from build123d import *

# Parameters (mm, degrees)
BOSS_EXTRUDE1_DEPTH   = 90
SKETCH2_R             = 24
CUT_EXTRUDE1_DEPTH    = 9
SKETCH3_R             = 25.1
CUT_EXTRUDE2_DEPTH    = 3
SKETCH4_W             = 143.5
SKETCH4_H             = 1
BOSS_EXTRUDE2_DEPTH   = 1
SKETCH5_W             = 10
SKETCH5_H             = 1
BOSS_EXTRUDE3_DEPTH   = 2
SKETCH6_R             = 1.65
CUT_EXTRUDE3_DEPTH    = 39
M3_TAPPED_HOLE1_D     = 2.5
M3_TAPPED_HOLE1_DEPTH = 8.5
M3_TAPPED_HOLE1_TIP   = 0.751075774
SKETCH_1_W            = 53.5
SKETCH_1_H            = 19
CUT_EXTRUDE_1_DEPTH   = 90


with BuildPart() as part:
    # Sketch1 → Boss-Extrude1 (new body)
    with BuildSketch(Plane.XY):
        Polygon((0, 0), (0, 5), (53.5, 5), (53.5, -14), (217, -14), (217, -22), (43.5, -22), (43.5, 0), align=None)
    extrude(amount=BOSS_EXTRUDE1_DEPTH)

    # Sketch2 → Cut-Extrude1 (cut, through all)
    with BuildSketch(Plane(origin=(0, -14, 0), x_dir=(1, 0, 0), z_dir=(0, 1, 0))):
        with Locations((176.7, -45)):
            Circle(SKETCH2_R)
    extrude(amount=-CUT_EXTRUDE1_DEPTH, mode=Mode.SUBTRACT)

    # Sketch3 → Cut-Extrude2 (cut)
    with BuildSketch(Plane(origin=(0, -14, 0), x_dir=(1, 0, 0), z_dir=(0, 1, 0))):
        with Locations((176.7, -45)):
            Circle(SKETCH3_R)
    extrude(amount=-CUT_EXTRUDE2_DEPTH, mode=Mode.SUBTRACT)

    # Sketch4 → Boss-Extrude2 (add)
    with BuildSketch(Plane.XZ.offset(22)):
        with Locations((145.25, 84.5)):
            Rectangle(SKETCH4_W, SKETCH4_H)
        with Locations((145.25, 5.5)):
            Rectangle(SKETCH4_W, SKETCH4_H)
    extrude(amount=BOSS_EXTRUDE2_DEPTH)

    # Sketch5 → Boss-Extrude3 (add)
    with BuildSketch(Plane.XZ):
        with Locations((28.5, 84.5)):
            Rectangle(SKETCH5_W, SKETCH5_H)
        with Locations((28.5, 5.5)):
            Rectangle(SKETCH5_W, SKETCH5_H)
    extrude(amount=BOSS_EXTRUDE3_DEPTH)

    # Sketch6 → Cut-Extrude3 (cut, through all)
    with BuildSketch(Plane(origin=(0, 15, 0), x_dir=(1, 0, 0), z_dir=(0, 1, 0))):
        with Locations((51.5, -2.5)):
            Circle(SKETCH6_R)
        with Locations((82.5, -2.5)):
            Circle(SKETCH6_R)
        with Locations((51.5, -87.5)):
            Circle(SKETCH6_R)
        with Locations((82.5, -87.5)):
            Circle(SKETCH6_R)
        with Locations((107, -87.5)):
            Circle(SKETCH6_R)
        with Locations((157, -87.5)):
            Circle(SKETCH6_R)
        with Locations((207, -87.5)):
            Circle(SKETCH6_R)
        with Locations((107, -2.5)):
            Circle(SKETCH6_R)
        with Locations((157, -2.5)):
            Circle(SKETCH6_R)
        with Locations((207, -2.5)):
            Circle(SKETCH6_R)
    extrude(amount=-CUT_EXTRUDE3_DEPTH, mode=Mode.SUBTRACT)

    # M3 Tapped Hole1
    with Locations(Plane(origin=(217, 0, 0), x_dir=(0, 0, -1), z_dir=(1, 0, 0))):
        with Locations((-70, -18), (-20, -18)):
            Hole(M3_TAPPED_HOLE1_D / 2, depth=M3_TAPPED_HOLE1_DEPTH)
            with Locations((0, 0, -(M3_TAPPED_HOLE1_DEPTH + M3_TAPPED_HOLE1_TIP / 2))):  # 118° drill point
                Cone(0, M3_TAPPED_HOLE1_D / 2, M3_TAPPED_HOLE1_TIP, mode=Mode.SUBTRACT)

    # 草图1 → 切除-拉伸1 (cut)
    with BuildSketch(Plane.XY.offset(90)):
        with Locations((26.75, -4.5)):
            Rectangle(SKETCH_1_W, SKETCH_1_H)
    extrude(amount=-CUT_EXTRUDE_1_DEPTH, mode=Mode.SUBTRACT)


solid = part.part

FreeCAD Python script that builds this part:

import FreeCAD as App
import Part
import Sketcher

doc = App.newDocument("Part")
body = doc.addObject("PartDesign::Body", "Body")

sketch1 = body.newObject("Sketcher::SketchObject", "Sketch")
sketch1.AttachmentSupport = (doc.getObject("XY_Plane"), [""])
sketch1.MapMode = "FlatFace"
sketch1.addGeometry([
    Part.LineSegment(App.Vector(0, 5, 0), App.Vector(0, 0, 0)),
    Part.LineSegment(App.Vector(0, 0, 0), App.Vector(44, 0, 0)),
    Part.LineSegment(App.Vector(44, 0, 0), App.Vector(44, -22, 0)),
    Part.LineSegment(App.Vector(44, -22, 0), App.Vector(217, -22, 0)),
    Part.LineSegment(App.Vector(217, -22, 0), App.Vector(217, -14, 0)),
    Part.LineSegment(App.Vector(217, -14, 0), App.Vector(54, -14, 0)),
    Part.LineSegment(App.Vector(54, -14, 0), App.Vector(54, 5, 0)),
    Part.LineSegment(App.Vector(54, 5, 0), App.Vector(0, 5, 0)),
], False)
sketch1.addConstraint([
    Sketcher.Constraint("Coincident", 0, 2, 1, 1),
    Sketcher.Constraint("Coincident", 1, 2, 2, 1),
    Sketcher.Constraint("Coincident", 2, 2, 3, 1),
    Sketcher.Constraint("Coincident", 3, 2, 4, 1),
    Sketcher.Constraint("Coincident", 4, 2, 5, 1),
    Sketcher.Constraint("Coincident", 5, 2, 6, 1),
    Sketcher.Constraint("Coincident", 6, 2, 7, 1),
    Sketcher.Constraint("Coincident", 7, 2, 0, 1),
    Sketcher.Constraint("Vertical", 0),
    Sketcher.Constraint("Horizontal", 1),
    Sketcher.Constraint("Vertical", 2),
    Sketcher.Constraint("Horizontal", 3),
    Sketcher.Constraint("Vertical", 4),
    Sketcher.Constraint("Horizontal", 5),
    Sketcher.Constraint("Vertical", 6),
    Sketcher.Constraint("Horizontal", 7),
    Sketcher.Constraint("Coincident", 0, 2, -1, 1),
    Sketcher.Constraint("DistanceY", 0, 2, 0, 1, 5.0),
    Sketcher.Constraint("DistanceY", 2, 2, 2, 1, 22.0),
    Sketcher.Constraint("DistanceY", 4, 1, 4, 2, 8.0),
    Sketcher.Constraint("DistanceX", 1, 1, 1, 2, 43.5),
    Sketcher.Constraint("DistanceX", 3, 1, 3, 2, 173.5),
    Sketcher.Constraint("DistanceX", 5, 2, 5, 1, 163.5),
])
pad1 = body.newObject("PartDesign::Pad", "Pad")
pad1.Profile = sketch1
pad1.Length = 90

sketch2 = body.newObject("Sketcher::SketchObject", "Sketch001")
sketch2.AttachmentSupport = (doc.getObject("XZ_Plane"), [""])
sketch2.MapMode = "FlatFace"
sketch2.AttachmentOffset = App.Placement(App.Vector(0, 0, 14), App.Rotation())
sketch2.addGeometry(Part.Circle(App.Vector(177, 45, 0), App.Vector(0, 0, 1), 24), False)
sketch2.addConstraint([
    Sketcher.Constraint("Diameter", 0, 48.0),
    Sketcher.Constraint("DistanceY", -1, 1, 0, 3, 45.0),
    Sketcher.Constraint("DistanceX", -1, 1, 0, 3, 176.7),
])
pocket1 = body.newObject("PartDesign::Pocket", "Pocket")
pocket1.Profile = sketch2
pocket1.Type = "ThroughAll"
pocket1.Reversed = True

sketch3 = body.newObject("Sketcher::SketchObject", "Sketch002")
sketch3.AttachmentSupport = (doc.getObject("XZ_Plane"), [""])
sketch3.MapMode = "FlatFace"
sketch3.AttachmentOffset = App.Placement(App.Vector(0, 0, 14), App.Rotation())
sketch3.addGeometry(Part.Circle(App.Vector(177, 45, 0), App.Vector(0, 0, 1), 25), False)
sketch3.addConstraint([
    Sketcher.Constraint("Diameter", 0, 50.2),
    Sketcher.Constraint("DistanceY", -1, 1, 0, 3, 45.0),
    Sketcher.Constraint("DistanceX", -1, 1, 0, 3, 176.7),
])
pocket2 = body.newObject("PartDesign::Pocket", "Pocket001")
pocket2.Profile = sketch3
pocket2.Length = 3
pocket2.Reversed = True

sketch4 = body.newObject("Sketcher::SketchObject", "Sketch003")
sketch4.AttachmentSupport = (doc.getObject("XZ_Plane"), [""])
sketch4.MapMode = "FlatFace"
sketch4.AttachmentOffset = App.Placement(App.Vector(0, 0, 22), App.Rotation())
sketch4.addGeometry([
    Part.LineSegment(App.Vector(73.5, 85, 0), App.Vector(73.5, 84, 0)),
    Part.LineSegment(App.Vector(73.5, 84, 0), App.Vector(217, 84, 0)),
    Part.LineSegment(App.Vector(217, 84, 0), App.Vector(217, 85, 0)),
    Part.LineSegment(App.Vector(217, 85, 0), App.Vector(73.5, 85, 0)),
    Part.LineSegment(App.Vector(73.5, 6, 0), App.Vector(73.5, 5, 0)),
    Part.LineSegment(App.Vector(73.5, 5, 0), App.Vector(217, 5, 0)),
    Part.LineSegment(App.Vector(217, 5, 0), App.Vector(217, 6, 0)),
    Part.LineSegment(App.Vector(217, 6, 0), App.Vector(73.5, 6, 0)),
], False)
sketch4.addConstraint([
    Sketcher.Constraint("Coincident", 0, 2, 1, 1),
    Sketcher.Constraint("Coincident", 1, 2, 2, 1),
    Sketcher.Constraint("Coincident", 2, 2, 3, 1),
    Sketcher.Constraint("Coincident", 3, 2, 0, 1),
    Sketcher.Constraint("Coincident", 4, 2, 5, 1),
    Sketcher.Constraint("Coincident", 5, 2, 6, 1),
    Sketcher.Constraint("Coincident", 6, 2, 7, 1),
    Sketcher.Constraint("Coincident", 7, 2, 4, 1),
    Sketcher.Constraint("Vertical", 0),
    Sketcher.Constraint("Horizontal", 1),
    Sketcher.Constraint("Vertical", 2),
    Sketcher.Constraint("Horizontal", 3),
    Sketcher.Constraint("Vertical", 4),
    Sketcher.Constraint("Horizontal", 5),
    Sketcher.Constraint("Vertical", 6),
    Sketcher.Constraint("Horizontal", 7),
    Sketcher.Constraint("Vertical", 3, 2, 4, 2),
    Sketcher.Constraint("Vertical", 2, 2, 5, 2),
    Sketcher.Constraint("Equal", 2, 4),
    Sketcher.Constraint("DistanceY", 0, 2, 0, 1, 1.0),
    Sketcher.Constraint("DistanceX", 1, 1, 1, 2, 143.5),
    Sketcher.Constraint("DistanceY", -1, 1, 0, 2, 84.0),
    Sketcher.Constraint("DistanceX", -1, 1, 1, 2, 217.0),
    Sketcher.Constraint("DistanceY", -1, 1, 4, 2, 5.0),
])
pad2 = body.newObject("PartDesign::Pad", "Pad001")
pad2.Profile = sketch4
pad2.Length = 1

sketch5 = body.newObject("Sketcher::SketchObject", "Sketch004")
sketch5.AttachmentSupport = (doc.getObject("XZ_Plane"), [""])
sketch5.MapMode = "FlatFace"
sketch5.addGeometry([
    Part.LineSegment(App.Vector(23.5, 85, 0), App.Vector(23.5, 84, 0)),
    Part.LineSegment(App.Vector(23.5, 84, 0), App.Vector(33.5, 84, 0)),
    Part.LineSegment(App.Vector(33.5, 84, 0), App.Vector(33.5, 85, 0)),
    Part.LineSegment(App.Vector(33.5, 85, 0), App.Vector(23.5, 85, 0)),
    Part.LineSegment(App.Vector(23.5, 6, 0), App.Vector(23.5, 5, 0)),
    Part.LineSegment(App.Vector(23.5, 5, 0), App.Vector(33.5, 5, 0)),
    Part.LineSegment(App.Vector(33.5, 5, 0), App.Vector(33.5, 6, 0)),
    Part.LineSegment(App.Vector(33.5, 6, 0), App.Vector(23.5, 6, 0)),
], False)
sketch5.addConstraint([
    Sketcher.Constraint("Coincident", 0, 2, 1, 1),
    Sketcher.Constraint("Coincident", 1, 2, 2, 1),
    Sketcher.Constraint("Coincident", 2, 2, 3, 1),
    Sketcher.Constraint("Coincident", 3, 2, 0, 1),
    Sketcher.Constraint("Coincident", 4, 2, 5, 1),
    Sketcher.Constraint("Coincident", 5, 2, 6, 1),
    Sketcher.Constraint("Coincident", 6, 2, 7, 1),
    Sketcher.Constraint("Coincident", 7, 2, 4, 1),
    Sketcher.Constraint("Vertical", 0),
    Sketcher.Constraint("Horizontal", 1),
    Sketcher.Constraint("Vertical", 2),
    Sketcher.Constraint("Horizontal", 3),
    Sketcher.Constraint("Vertical", 4),
    Sketcher.Constraint("Horizontal", 5),
    Sketcher.Constraint("Vertical", 6),
    Sketcher.Constraint("Horizontal", 7),
    Sketcher.Constraint("Vertical", 3, 2, 4, 2),
    Sketcher.Constraint("Vertical", 2, 2, 5, 2),
    Sketcher.Constraint("Equal", 2, 4),
    Sketcher.Constraint("DistanceX", 1, 1, 1, 2, 10.0),
    Sketcher.Constraint("DistanceY", 0, 2, 0, 1, 1.0),
    Sketcher.Constraint("DistanceY", -1, 1, 0, 2, 84.0),
    Sketcher.Constraint("DistanceY", -1, 1, 4, 2, 5.0),
    Sketcher.Constraint("DistanceX", -1, 1, 0, 2, 23.5),
])
pad3 = body.newObject("PartDesign::Pad", "Pad002")
pad3.Profile = sketch5
pad3.Length = 2

sketch6 = body.newObject("Sketcher::SketchObject", "Sketch005")
sketch6.AttachmentSupport = (doc.getObject("XZ_Plane"), [""])
sketch6.MapMode = "FlatFace"
sketch6.AttachmentOffset = App.Placement(App.Vector(0, 0, -15), App.Rotation())
sketch6.addGeometry([
    Part.Circle(App.Vector(51.5, 2.5, 0), App.Vector(0, 0, 1), 1.6),
    Part.Circle(App.Vector(82.5, 2.5, 0), App.Vector(0, 0, 1), 1.6),
    Part.Circle(App.Vector(51.5, 87.5, 0), App.Vector(0, 0, 1), 1.6),
    Part.Circle(App.Vector(82.5, 87.5, 0), App.Vector(0, 0, 1), 1.6),
    Part.Circle(App.Vector(107, 87.5, 0), App.Vector(0, 0, 1), 1.6),
    Part.Circle(App.Vector(157, 87.5, 0), App.Vector(0, 0, 1), 1.6),
    Part.Circle(App.Vector(207, 87.5, 0), App.Vector(0, 0, 1), 1.6),
    Part.Circle(App.Vector(107, 2.5, 0), App.Vector(0, 0, 1), 1.6),
    Part.Circle(App.Vector(157, 2.5, 0), App.Vector(0, 0, 1), 1.6),
    Part.Circle(App.Vector(207, 2.5, 0), App.Vector(0, 0, 1), 1.6),
], False)
sketch6.addConstraint([
    Sketcher.Constraint("Equal", 0, 1),
    Sketcher.Constraint("Equal", 1, 2),
    Sketcher.Constraint("Equal", 2, 3),
    Sketcher.Constraint("Equal", 3, 4),
    Sketcher.Constraint("Equal", 4, 5),
    Sketcher.Constraint("Equal", 5, 6),
    Sketcher.Constraint("Equal", 6, 7),
    Sketcher.Constraint("Equal", 7, 8),
    Sketcher.Constraint("Equal", 8, 9),
    Sketcher.Constraint("Horizontal", 0, 3, 1, 3),
    Sketcher.Constraint("Horizontal", 2, 3, 3, 3),
    Sketcher.Constraint("Horizontal", 3, 3, 4, 3),
    Sketcher.Constraint("Horizontal", 4, 3, 5, 3),
    Sketcher.Constraint("Horizontal", 5, 3, 6, 3),
    Sketcher.Constraint("Horizontal", 1, 3, 7, 3),
    Sketcher.Constraint("Horizontal", 7, 3, 8, 3),
    Sketcher.Constraint("Horizontal", 8, 3, 9, 3),
    Sketcher.Constraint("Vertical", 0, 3, 2, 3),
    Sketcher.Constraint("Vertical", 1, 3, 3, 3),
    Sketcher.Constraint("Vertical", 4, 3, 7, 3),
    Sketcher.Constraint("Vertical", 5, 3, 8, 3),
    Sketcher.Constraint("Vertical", 6, 3, 9, 3),
    Sketcher.Constraint("Diameter", 0, 3.3),
    Sketcher.Constraint("DistanceX", -1, 1, 4, 3, 107.0),
    Sketcher.Constraint("DistanceX", -1, 1, 5, 3, 157.0),
    Sketcher.Constraint("DistanceX", -1, 1, 6, 3, 207.0),
    Sketcher.Constraint("DistanceX", 0, 3, 1, 3, 31.0),
    Sketcher.Constraint("DistanceY", 0, 3, 2, 3, 85.0),
    Sketcher.Constraint("DistanceX", -1, 1, 0, 3, 51.5),
    Sketcher.Constraint("DistanceY", -1, 1, 0, 3, 2.5),
])
pocket3 = body.newObject("PartDesign::Pocket", "Pocket002")
pocket3.Profile = sketch6
pocket3.Type = "ThroughAll"
pocket3.Reversed = True

sketch7 = body.newObject("Sketcher::SketchObject", "Sketch006")
sketch7.AttachmentSupport = (doc.getObject("YZ_Plane"), [""])
sketch7.MapMode = "FlatFace"
sketch7.AttachmentOffset = App.Placement(App.Vector(0, 0, 217), App.Rotation())
sketch7.addGeometry([
    Part.Circle(App.Vector(-18, 70, 0), App.Vector(0, 0, 1), 1.2),
    Part.Circle(App.Vector(-18, 20, 0), App.Vector(0, 0, 1), 1.2),
], False)
sketch7.addConstraint([
    Sketcher.Constraint("Equal", 0, 1),
    Sketcher.Constraint("Vertical", 0, 3, 1, 3),
    Sketcher.Constraint("Diameter", 0, 2.5),
    Sketcher.Constraint("DistanceX", 0, 3, -1, 1, 18.0),
    Sketcher.Constraint("DistanceY", -1, 1, 0, 3, 70.0),
    Sketcher.Constraint("DistanceY", -1, 1, 1, 3, 20.0),
])
doc.recompute()
hole = body.newObject("PartDesign::Hole", "Hole")
hole.Profile = sketch7
hole.ThreadType = "None"
hole.Diameter = 2.5
hole.DepthType = "Dimension"
hole.Depth = 8.5
hole.DrillPoint = "Angled"
hole.DrillPointAngle = 118

sketch8 = body.newObject("Sketcher::SketchObject", "Sketch007")
sketch8.AttachmentSupport = (doc.getObject("XY_Plane"), [""])
sketch8.MapMode = "FlatFace"
sketch8.AttachmentOffset = App.Placement(App.Vector(0, 0, 90), App.Rotation())
sketch8.addGeometry([
    Part.LineSegment(App.Vector(0, 5, 0), App.Vector(0, -14, 0)),
    Part.LineSegment(App.Vector(0, -14, 0), App.Vector(54, -14, 0)),
    Part.LineSegment(App.Vector(54, -14, 0), App.Vector(54, 5, 0)),
    Part.LineSegment(App.Vector(54, 5, 0), App.Vector(0, 5, 0)),
], False)
sketch8.addConstraint([
    Sketcher.Constraint("Coincident", 0, 2, 1, 1),
    Sketcher.Constraint("Coincident", 1, 2, 2, 1),
    Sketcher.Constraint("Coincident", 2, 2, 3, 1),
    Sketcher.Constraint("Coincident", 3, 2, 0, 1),
    Sketcher.Constraint("Vertical", 0),
    Sketcher.Constraint("Horizontal", 1),
    Sketcher.Constraint("Vertical", 2),
    Sketcher.Constraint("Horizontal", 3),
    Sketcher.Constraint("PointOnObject", 0, 2, -2),
    Sketcher.Constraint("DistanceY", 0, 2, 0, 1, 19.0),
    Sketcher.Constraint("DistanceX", 1, 1, 1, 2, 53.5),
    Sketcher.Constraint("DistanceY", 0, 2, -1, 1, 14.0),
])
pocket4 = body.newObject("PartDesign::Pocket", "Pocket003")
pocket4.Profile = sketch8
pocket4.Length = 90

doc.recompute()
